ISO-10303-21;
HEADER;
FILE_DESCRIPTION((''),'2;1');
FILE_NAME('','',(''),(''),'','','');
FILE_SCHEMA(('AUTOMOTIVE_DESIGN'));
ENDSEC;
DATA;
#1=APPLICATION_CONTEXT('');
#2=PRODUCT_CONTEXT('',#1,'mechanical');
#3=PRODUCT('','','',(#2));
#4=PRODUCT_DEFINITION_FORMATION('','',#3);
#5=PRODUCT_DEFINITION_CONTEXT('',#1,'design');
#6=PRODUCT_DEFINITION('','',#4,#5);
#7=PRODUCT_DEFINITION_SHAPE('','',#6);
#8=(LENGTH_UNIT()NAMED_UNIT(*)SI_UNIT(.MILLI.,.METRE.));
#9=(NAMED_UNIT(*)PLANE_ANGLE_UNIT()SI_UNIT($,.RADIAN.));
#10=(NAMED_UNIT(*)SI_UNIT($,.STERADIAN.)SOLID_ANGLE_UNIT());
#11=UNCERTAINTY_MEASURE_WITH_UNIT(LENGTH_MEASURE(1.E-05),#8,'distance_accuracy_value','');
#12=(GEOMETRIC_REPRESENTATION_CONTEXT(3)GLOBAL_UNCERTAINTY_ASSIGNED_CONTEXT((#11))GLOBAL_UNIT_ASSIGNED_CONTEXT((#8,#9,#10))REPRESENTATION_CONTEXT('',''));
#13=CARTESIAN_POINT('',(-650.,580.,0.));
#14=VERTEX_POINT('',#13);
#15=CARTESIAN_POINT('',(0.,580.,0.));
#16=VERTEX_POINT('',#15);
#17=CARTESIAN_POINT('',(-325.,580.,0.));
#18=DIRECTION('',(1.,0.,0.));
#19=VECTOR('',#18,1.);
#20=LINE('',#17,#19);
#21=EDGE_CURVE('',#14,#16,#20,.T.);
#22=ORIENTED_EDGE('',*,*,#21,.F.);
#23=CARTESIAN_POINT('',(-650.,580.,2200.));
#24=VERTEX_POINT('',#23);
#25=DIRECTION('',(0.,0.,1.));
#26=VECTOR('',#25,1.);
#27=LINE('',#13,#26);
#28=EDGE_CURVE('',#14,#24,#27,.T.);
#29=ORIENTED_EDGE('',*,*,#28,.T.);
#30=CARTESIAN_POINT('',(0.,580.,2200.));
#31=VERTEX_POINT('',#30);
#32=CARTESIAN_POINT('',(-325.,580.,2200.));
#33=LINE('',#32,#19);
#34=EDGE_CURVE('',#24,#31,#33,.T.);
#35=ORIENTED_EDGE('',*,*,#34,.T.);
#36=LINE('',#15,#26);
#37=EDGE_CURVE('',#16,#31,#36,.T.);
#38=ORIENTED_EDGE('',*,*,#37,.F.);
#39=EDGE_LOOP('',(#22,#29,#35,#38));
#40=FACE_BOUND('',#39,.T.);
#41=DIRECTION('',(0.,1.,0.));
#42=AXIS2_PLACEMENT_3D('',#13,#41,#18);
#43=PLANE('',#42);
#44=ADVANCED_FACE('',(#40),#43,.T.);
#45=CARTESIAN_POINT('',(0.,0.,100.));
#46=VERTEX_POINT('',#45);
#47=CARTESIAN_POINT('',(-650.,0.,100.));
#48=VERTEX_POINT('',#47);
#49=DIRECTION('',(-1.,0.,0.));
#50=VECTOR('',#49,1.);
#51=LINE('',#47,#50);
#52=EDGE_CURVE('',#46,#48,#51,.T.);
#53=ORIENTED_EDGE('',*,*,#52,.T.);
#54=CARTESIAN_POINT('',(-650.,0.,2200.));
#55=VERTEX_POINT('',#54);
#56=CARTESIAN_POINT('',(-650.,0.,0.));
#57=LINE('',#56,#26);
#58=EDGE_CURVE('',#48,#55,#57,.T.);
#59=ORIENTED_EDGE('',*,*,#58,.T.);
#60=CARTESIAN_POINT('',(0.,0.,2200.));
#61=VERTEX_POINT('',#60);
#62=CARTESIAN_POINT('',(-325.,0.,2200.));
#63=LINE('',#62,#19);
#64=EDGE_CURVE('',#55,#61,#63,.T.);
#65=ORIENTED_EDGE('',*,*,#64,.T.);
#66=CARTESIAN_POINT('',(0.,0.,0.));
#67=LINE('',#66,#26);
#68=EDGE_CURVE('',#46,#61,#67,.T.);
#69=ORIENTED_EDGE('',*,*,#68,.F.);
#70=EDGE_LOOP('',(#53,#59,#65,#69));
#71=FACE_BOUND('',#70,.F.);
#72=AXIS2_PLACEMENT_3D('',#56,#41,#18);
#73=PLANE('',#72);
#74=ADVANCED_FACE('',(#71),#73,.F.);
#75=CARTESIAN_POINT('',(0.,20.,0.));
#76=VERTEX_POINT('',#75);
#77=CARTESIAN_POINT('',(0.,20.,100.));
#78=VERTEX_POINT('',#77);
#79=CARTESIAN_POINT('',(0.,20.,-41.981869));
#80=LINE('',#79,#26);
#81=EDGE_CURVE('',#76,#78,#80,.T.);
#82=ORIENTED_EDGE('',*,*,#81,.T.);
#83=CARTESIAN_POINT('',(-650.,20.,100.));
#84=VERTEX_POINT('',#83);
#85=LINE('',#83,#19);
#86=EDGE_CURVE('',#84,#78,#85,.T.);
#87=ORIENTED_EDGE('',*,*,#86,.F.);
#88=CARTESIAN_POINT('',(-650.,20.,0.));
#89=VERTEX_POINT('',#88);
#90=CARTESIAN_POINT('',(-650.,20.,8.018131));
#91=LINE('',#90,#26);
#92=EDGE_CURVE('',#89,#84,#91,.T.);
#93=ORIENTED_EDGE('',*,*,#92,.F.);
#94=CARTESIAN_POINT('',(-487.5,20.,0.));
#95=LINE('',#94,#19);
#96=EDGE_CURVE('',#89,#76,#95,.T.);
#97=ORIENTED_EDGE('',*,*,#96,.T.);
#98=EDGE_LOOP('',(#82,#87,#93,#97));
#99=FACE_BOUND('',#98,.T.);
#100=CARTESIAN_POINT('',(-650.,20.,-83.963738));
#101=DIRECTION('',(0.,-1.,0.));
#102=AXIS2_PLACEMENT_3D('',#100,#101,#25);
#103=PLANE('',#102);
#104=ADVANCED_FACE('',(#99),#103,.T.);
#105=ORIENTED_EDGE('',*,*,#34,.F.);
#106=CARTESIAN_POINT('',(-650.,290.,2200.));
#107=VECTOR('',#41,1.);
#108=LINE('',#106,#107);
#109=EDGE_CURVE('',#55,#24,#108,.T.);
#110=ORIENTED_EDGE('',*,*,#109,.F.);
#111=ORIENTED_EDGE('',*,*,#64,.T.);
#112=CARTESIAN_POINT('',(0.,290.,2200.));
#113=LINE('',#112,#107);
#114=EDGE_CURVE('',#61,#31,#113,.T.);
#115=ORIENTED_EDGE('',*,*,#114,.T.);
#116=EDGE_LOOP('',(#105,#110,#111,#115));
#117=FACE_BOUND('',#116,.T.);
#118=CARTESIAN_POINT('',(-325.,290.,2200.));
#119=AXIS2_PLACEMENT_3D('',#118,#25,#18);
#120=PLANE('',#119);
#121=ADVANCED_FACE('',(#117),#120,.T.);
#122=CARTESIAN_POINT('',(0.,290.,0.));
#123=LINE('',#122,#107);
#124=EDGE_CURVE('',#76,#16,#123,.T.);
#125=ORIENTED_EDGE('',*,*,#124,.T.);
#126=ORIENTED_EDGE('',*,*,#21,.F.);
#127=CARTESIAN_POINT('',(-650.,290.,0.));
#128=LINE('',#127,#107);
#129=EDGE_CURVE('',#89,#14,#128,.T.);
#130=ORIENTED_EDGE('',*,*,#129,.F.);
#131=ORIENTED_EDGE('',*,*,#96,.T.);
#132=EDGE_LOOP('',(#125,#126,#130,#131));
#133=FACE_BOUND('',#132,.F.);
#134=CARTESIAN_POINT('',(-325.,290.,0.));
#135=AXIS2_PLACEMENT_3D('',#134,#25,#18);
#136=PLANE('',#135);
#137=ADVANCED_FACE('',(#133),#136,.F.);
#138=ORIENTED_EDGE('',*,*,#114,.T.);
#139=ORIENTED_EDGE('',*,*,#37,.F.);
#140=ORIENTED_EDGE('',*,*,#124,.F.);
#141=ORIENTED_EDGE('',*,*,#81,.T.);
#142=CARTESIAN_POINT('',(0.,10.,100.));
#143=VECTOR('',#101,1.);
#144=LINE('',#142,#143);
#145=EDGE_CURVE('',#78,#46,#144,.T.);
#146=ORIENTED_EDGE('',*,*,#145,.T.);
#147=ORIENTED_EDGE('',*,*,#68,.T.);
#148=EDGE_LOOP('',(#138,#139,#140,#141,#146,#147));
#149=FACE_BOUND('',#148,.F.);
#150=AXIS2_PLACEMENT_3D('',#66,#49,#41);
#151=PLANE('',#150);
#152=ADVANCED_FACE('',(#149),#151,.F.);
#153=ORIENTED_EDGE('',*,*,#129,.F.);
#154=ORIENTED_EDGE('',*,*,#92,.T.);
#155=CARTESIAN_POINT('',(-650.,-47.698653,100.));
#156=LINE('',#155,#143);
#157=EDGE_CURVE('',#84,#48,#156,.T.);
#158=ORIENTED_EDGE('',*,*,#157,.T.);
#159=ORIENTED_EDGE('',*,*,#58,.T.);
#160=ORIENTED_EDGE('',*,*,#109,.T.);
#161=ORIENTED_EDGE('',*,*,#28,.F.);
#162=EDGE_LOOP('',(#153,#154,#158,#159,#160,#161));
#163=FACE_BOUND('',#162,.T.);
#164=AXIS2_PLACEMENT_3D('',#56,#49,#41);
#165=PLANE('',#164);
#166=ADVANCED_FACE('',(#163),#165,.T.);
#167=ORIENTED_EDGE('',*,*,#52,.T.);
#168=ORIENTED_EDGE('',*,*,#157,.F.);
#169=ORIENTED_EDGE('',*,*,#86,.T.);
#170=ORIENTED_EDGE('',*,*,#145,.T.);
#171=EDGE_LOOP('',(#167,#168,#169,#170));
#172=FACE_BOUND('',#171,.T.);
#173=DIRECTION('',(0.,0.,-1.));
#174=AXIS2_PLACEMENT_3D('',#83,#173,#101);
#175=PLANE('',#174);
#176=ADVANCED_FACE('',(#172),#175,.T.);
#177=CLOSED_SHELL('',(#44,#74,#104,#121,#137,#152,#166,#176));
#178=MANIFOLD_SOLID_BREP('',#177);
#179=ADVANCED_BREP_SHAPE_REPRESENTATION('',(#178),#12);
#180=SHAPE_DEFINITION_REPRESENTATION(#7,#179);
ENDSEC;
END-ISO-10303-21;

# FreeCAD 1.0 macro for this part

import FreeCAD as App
import Part
import Sketcher

V = App.Vector


def add_polygon(sketch, points):
    """Adds a closed chain of lines whose ends are joined by coincident constraints."""
    first, n = sketch.GeometryCount, len(points)
    for a, b in zip(points, points[1:] + points[:1]):
        sketch.addGeometry(Part.LineSegment(App.Vector(*a, 0), App.Vector(*b, 0)), False)
    for i in range(n):
        sketch.addConstraint(Sketcher.Constraint("Coincident", first + i, 2, first + (i + 1) % n, 1))

doc = App.newDocument("Part")
body = doc.addObject("PartDesign::Body", "Body")

sketch1 = body.newObject("Sketcher::SketchObject", "Sketch")
sketch1.AttachmentSupport = (doc.getObject("XY_Plane"), [""])
sketch1.MapMode = "FlatFace"
add_polygon(sketch1, [(-650, 580), (-650, 0), (0, 0), (0, 580)])
sketch1.addConstraint([
    Sketcher.Constraint("Vertical", 0),
    Sketcher.Constraint("Horizontal", 1),
    Sketcher.Constraint("Vertical", 2),
    Sketcher.Constraint("Horizontal", 3),
    Sketcher.Constraint("Coincident", 1, 2, -1, 1),
    Sketcher.Constraint("DistanceX", 1, 1, 1, 2, 650.0),
    Sketcher.Constraint("DistanceY", 0, 2, 0, 1, 580.0),
])
pad1 = body.newObject("PartDesign::Pad", "Pad")
pad1.Profile = sketch1
pad1.Length = 2200

sketch2 = body.newObject("Sketcher::SketchObject", "Sketch001")
sketch2.AttachmentSupport = (doc.getObject("YZ_Plane"), [""])
sketch2.MapMode = "FlatFace"
sketch2.AttachmentOffset = App.Placement(V(0, 0, -650), App.Rotation())
add_polygon(sketch2, [(20, 100), (20, -84), (-115, -84), (-115, 100)])
sketch2.addConstraint([
    Sketcher.Constraint("Vertical", 0),
    Sketcher.Constraint("Horizontal", 1),
    Sketcher.Constraint("Vertical", 2),
    Sketcher.Constraint("Horizontal", 3),
    Sketcher.Constraint("DistanceX", -1, 1, 0, 2, 20.0),
    Sketcher.Constraint("DistanceY", -1, 1, 2, 2, 100.0),
    Sketcher.Constraint("DistanceY", 0, 2, 0, 1, 183.963738),
    Sketcher.Constraint("DistanceX", 1, 2, 1, 1, 135.397307),
])
pocket1 = body.newObject("PartDesign::Pocket", "Pocket")
pocket1.Profile = sketch2
pocket1.Type = "ThroughAll"
pocket1.Reversed = True

doc.recompute()
